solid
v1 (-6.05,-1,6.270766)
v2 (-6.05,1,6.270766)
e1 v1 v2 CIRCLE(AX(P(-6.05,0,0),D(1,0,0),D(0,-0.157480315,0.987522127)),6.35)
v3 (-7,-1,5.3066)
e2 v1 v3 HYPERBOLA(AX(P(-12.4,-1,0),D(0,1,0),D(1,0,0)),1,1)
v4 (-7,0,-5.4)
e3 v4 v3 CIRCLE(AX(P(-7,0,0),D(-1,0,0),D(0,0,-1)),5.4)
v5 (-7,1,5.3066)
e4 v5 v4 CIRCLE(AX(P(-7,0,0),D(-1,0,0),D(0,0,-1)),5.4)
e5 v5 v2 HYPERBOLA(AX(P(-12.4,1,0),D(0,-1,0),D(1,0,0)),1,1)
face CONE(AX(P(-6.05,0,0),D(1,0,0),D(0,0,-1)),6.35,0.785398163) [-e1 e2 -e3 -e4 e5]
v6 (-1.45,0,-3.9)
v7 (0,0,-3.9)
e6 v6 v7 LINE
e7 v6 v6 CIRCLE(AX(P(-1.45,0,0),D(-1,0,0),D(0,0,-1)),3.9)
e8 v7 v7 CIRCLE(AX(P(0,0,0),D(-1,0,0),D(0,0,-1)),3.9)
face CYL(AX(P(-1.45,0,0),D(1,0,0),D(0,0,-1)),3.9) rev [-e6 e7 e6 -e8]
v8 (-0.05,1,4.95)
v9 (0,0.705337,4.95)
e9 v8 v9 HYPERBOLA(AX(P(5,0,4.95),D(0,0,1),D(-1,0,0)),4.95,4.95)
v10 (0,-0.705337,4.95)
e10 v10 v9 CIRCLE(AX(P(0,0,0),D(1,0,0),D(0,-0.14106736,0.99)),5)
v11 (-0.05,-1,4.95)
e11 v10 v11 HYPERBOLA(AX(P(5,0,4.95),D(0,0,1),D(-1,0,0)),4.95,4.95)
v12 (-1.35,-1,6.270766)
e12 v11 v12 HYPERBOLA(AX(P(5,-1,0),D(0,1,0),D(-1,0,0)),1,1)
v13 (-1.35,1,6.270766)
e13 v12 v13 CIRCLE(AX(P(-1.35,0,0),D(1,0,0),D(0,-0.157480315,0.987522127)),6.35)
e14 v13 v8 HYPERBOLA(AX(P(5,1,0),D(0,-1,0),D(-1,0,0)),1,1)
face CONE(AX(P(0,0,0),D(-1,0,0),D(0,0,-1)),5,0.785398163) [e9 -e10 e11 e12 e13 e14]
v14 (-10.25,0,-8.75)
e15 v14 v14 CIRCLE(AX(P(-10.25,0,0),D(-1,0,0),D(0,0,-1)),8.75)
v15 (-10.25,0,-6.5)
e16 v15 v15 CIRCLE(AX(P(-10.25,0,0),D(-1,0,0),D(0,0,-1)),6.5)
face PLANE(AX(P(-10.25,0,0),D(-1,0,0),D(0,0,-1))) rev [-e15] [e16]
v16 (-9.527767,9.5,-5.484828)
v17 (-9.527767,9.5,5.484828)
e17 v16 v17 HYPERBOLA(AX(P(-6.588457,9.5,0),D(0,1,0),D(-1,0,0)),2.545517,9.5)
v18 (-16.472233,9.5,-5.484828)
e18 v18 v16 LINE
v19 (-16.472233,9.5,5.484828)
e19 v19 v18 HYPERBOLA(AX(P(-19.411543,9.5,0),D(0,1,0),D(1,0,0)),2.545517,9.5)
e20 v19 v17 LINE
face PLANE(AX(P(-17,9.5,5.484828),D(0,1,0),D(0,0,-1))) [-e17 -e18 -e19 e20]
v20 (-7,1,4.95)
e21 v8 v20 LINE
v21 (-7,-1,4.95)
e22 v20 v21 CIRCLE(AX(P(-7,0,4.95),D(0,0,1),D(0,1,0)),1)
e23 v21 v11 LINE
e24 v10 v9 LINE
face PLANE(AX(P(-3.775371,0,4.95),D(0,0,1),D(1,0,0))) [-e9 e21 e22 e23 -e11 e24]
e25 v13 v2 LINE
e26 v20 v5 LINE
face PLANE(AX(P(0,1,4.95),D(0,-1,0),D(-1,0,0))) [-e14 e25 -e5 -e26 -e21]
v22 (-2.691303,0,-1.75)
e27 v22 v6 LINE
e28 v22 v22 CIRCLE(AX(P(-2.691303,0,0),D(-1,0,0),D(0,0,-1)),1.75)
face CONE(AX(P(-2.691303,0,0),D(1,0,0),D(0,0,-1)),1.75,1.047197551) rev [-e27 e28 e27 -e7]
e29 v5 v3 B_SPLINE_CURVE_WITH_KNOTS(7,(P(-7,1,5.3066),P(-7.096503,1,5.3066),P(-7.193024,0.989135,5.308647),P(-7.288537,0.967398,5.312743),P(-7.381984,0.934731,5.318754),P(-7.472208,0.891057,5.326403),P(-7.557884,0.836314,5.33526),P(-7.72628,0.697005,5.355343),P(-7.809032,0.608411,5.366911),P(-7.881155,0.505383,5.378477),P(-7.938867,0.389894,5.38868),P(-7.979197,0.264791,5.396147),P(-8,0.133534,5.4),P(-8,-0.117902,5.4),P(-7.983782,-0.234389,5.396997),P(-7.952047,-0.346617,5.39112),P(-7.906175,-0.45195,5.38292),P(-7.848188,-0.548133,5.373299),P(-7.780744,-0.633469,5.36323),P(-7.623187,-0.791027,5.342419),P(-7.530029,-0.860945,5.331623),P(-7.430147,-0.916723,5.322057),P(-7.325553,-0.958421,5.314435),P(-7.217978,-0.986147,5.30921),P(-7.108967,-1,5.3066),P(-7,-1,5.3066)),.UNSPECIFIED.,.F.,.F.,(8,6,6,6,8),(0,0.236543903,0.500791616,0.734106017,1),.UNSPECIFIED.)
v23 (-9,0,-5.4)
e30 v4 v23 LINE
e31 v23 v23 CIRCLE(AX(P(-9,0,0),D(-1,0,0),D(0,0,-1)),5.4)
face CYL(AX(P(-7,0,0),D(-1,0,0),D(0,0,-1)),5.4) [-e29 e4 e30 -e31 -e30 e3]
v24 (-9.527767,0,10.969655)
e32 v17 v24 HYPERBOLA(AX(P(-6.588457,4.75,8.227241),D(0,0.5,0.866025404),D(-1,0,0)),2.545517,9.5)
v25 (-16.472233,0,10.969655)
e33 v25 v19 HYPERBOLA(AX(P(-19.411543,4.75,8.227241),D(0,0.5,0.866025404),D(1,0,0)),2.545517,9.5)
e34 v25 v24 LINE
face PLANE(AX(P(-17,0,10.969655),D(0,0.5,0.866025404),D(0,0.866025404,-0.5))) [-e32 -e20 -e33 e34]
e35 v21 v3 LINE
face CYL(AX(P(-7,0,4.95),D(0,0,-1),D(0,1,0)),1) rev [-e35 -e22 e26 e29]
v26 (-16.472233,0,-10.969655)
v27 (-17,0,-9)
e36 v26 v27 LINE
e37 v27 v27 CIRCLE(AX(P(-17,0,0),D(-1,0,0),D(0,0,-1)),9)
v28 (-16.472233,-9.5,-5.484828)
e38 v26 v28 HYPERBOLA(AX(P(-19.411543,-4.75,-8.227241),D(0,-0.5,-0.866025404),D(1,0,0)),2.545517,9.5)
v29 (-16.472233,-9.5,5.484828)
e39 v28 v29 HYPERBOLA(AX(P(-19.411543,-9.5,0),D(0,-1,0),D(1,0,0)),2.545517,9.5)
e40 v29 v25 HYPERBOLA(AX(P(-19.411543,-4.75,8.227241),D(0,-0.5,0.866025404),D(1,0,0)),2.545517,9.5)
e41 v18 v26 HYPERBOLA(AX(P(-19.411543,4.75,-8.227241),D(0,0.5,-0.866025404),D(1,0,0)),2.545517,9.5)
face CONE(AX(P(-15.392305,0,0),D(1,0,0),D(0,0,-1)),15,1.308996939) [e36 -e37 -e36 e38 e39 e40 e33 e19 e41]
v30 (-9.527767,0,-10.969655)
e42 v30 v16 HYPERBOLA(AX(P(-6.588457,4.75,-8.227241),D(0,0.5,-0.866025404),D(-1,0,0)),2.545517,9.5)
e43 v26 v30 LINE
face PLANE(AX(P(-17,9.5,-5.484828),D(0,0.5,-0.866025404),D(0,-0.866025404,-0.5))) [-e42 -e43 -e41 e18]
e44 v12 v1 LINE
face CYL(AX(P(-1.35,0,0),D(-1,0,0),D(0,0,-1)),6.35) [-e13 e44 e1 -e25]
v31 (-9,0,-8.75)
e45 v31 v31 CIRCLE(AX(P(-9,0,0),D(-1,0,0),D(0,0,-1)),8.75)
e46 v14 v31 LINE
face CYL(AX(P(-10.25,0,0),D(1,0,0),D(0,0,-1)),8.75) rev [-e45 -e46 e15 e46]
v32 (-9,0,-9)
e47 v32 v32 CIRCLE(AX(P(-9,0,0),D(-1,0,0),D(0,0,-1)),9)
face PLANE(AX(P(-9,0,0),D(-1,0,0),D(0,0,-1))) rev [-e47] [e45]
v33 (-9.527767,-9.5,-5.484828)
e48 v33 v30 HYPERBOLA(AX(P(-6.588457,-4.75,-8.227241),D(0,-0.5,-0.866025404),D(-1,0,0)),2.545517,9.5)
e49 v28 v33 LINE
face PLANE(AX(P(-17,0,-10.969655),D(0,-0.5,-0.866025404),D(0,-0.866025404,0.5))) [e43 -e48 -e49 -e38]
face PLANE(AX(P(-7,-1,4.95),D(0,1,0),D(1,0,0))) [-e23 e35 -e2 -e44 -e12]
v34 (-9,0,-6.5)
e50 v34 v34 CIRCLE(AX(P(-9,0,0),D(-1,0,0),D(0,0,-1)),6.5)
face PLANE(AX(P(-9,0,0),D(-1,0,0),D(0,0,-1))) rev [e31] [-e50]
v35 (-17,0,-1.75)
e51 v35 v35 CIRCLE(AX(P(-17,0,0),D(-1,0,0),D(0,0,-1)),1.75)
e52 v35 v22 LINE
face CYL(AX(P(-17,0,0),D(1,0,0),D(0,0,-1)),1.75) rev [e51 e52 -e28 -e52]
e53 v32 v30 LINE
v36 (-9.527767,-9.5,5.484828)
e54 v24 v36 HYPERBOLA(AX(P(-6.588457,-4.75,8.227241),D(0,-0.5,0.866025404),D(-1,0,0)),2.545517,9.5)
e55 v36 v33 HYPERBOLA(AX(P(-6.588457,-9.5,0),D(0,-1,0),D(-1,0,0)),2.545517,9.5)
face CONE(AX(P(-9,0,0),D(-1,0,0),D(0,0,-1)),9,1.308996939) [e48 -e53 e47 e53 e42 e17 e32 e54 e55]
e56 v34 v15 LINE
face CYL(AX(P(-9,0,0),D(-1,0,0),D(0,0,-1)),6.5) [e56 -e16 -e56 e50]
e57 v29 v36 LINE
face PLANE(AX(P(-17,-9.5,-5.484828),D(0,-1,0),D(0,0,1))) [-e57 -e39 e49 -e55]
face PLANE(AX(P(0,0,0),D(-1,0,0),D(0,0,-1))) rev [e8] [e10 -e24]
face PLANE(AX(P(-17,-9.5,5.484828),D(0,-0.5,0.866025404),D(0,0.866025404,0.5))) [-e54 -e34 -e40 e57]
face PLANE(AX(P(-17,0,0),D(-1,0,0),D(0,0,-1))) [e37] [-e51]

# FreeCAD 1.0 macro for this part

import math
import FreeCAD as App
import Part
import Sketcher
from FreeCAD import Vector
Q = App.Units.Quantity


def add_polygon(sketch, points):
    """Adds a closed chain of lines whose ends are joined by coincident constraints."""
    first, n = sketch.GeometryCount, len(points)
    for a, b in zip(points, points[1:] + points[:1]):
        sketch.addGeometry(Part.LineSegment(App.Vector(*a, 0), App.Vector(*b, 0)), False)
    for i in range(n):
        sketch.addConstraint(Sketcher.Constraint("Coincident", first + i, 2, first + (i + 1) % n, 1))

doc = App.newDocument("Part")
body = doc.addObject("PartDesign::Body", "Body")

# Sketch on XY plane
sketch1 = body.newObject("Sketcher::SketchObject", "Sketch")
sketch1.AttachmentSupport = (doc.getObject("XY_Plane"), [""])
sketch1.MapMode = "FlatFace"
add_polygon(sketch1, [(0, 3.9), (0, 5), (-1.35, 6.35), (-6.05, 6.35), (-7, 5.4), (-9, 5.4), (-9, 6.5), (-10.25, 6.5), (-10.25, 8.75), (-9, 8.75), (-9, 9), (-10.61, 15), (-15.39, 15), (-17, 9), (-17, 1.75), (-2.69, 1.75), (-1.45, 3.9)])  # lines 0-16
sketch1.addConstraint(Sketcher.Constraint("Vertical", 0))
sketch1.addConstraint(Sketcher.Constraint("Horizontal", 2))
sketch1.addConstraint(Sketcher.Constraint("Horizontal", 4))
sketch1.addConstraint(Sketcher.Constraint("Vertical", 5))
sketch1.addConstraint(Sketcher.Constraint("Horizontal", 6))
sketch1.addConstraint(Sketcher.Constraint("Vertical", 7))
sketch1.addConstraint(Sketcher.Constraint("Horizontal", 8))
sketch1.addConstraint(Sketcher.Constraint("Vertical", 9))
sketch1.addConstraint(Sketcher.Constraint("Horizontal", 11))
sketch1.addConstraint(Sketcher.Constraint("Vertical", 13))
sketch1.addConstraint(Sketcher.Constraint("Horizontal", 14))
sketch1.addConstraint(Sketcher.Constraint("Horizontal", 16))
sketch1.addConstraint(Sketcher.Constraint("PointOnObject", 0, 2, -2))
sketch1.addConstraint(Sketcher.Constraint("Perpendicular", 1, 3))
sketch1.addConstraint(Sketcher.Constraint("Horizontal", 9, 2, 12, 2))
sketch1.addConstraint(Sketcher.Constraint("Vertical", 5, 2, 8, 2))
sketch1.addConstraint(Sketcher.Constraint("Equal", 0, 5))
sketch1.addConstraint(Sketcher.Constraint("Equal", 10, 12))
sketch1.addConstraint(Sketcher.Constraint("DistanceX", 4, 2, 4, 1, 2.0))
sketch1.addConstraint(Sketcher.Constraint("Angle", 1, Q("135 deg")))
sketch1.addConstraint(Sketcher.Constraint("Angle", 10, Q("105 deg")))
sketch1.addConstraint(Sketcher.Constraint("Angle", 15, Q("60 deg")))
sketch1.addConstraint(Sketcher.Constraint("DistanceX", 2, 2, 2, 1, 4.7))
sketch1.addConstraint(Sketcher.Constraint("DistanceY", 0, 1, 0, 2, 1.1))
sketch1.addConstraint(Sketcher.Constraint("DistanceY", -1, 1, 0, 2, 5.0))
sketch1.addConstraint(Sketcher.Constraint("DistanceX", 3, 2, -1, 1, 7.0))
sketch1.addConstraint(Sketcher.Constraint("DistanceY", -1, 1, 9, 2, 9.0))
sketch1.addConstraint(Sketcher.Constraint("DistanceY", -1, 1, 10, 2, 15.0))
sketch1.addConstraint(Sketcher.Constraint("DistanceX", 12, 2, -1, 1, 17.0))
sketch1.addConstraint(Sketcher.Constraint("DistanceY", 13, 2, 7, 2, 7.0))
sketch1.addConstraint(Sketcher.Constraint("DistanceX", 6, 2, 6, 1, 1.25))
sketch1.addConstraint(Sketcher.Constraint("DistanceX", 16, 1, 16, 2, 1.45))
sketch1.addConstraint(Sketcher.Constraint("DistanceY", 7, 1, 7, 2, 2.25))
sketch1.addConstraint(Sketcher.Constraint("DistanceY", 9, 1, 9, 2, 0.25))
revolution = body.newObject("PartDesign::Revolution", "Revolution")
revolution.Profile = sketch1
revolution.ReferenceAxis = (sketch1, ["H_Axis"])
revolution.Angle = 360

# Sketch on YZ plane
sketch2 = body.newObject("Sketcher::SketchObject", "Sketch001")
sketch2.AttachmentSupport = (doc.getObject("YZ_Plane"), [""])
sketch2.MapMode = "FlatFace"
sketch2.AttachmentOffset = App.Placement(Vector(0, 0, -17), App.Rotation())
add_polygon(sketch2, [(21, -21), (-21, -21), (-21, 21), (21, 21)])  # lines 0-3
add_polygon(sketch2, [(10, 5), (0, 11), (-10, 5), (-10, -5), (0, -11), (10, -5)])  # lines 4-9
sketch2.addConstraint(Sketcher.Constraint("Horizontal", 0))
sketch2.addConstraint(Sketcher.Constraint("Vertical", 1))
sketch2.addConstraint(Sketcher.Constraint("Horizontal", 2))
sketch2.addConstraint(Sketcher.Constraint("Vertical", 3))
sketch2.addConstraint(Sketcher.Constraint("Vertical", 6))
sketch2.addConstraint(Sketcher.Constraint("Vertical", 9))
sketch2.addConstraint(Sketcher.Constraint("Symmetric", 0, 2, 2, 2, -1, 1))
sketch2.addConstraint(Sketcher.Constraint("Symmetric", 4, 2, 7, 2, -1, 1))
sketch2.addConstraint(Sketcher.Constraint("Symmetric", 5, 2, 8, 2, -1, 1))
sketch2.addConstraint(Sketcher.Constraint("PointOnObject", 4, 2, -2))
sketch2.addConstraint(Sketcher.Constraint("Parallel", 4, 7))
sketch2.addConstraint(Sketcher.Constraint("Horizontal", 6, 2, 8, 2))
sketch2.addConstraint(Sketcher.Constraint("Equal", 2, 1))
sketch2.addConstraint(Sketcher.Constraint("Angle", 4, Q("150 deg")))
sketch2.addConstraint(Sketcher.Constraint("DistanceX", 6, 2, 8, 2, 19.0))
sketch2.addConstraint(Sketcher.Constraint("DistanceX", 0, 2, 0, 1, 41.142))
sketch2.addConstraint(Sketcher.Constraint("DistanceY", 6, 2, 6, 1, 10.969655))
pocket1 = body.newObject("PartDesign::Pocket", "Pocket")
pocket1.Profile = sketch2
pocket1.Type = "ThroughAll"
pocket1.Reversed = True

# Sketch on XY plane
sketch3 = body.newObject("Sketcher::SketchObject", "Sketch002")
sketch3.AttachmentSupport = (doc.getObject("XY_Plane"), [""])
sketch3.MapMode = "FlatFace"
sketch3.AttachmentOffset = App.Placement(Vector(0, 0, 4.95), App.Rotation())
sketch3.addGeometry(Part.LineSegment(Vector(0, 1, 0), Vector(-7, 1, 0)), False)
sketch3.addGeometry(Part.ArcOfCircle(Part.Circle(Vector(-7, 0, 0), Vector(0, 0, 1), 1), math.radians(90), math.radians(270)), False)
sketch3.addGeometry(Part.LineSegment(Vector(-7, -1, 0), Vector(0, -1, 0)), False)
sketch3.addGeometry(Part.LineSegment(Vector(0, -1, 0), Vector(0, 1, 0)), False)
sketch3.addConstraint(Sketcher.Constraint("Tangent", 0, 2, 1, 1))
sketch3.addConstraint(Sketcher.Constraint("Tangent", 1, 2, 2, 1))
sketch3.addConstraint(Sketcher.Constraint("Coincident", 2, 2, 3, 1))
sketch3.addConstraint(Sketcher.Constraint("Coincident", 3, 2, 0, 1))
sketch3.addConstraint(Sketcher.Constraint("Horizontal", 0))
sketch3.addConstraint(Sketcher.Constraint("Horizontal", 2))
sketch3.addConstraint(Sketcher.Constraint("Vertical", 3))
sketch3.addConstraint(Sketcher.Constraint("Symmetric", 2, 2, 3, 2, -1, 1))
sketch3.addConstraint(Sketcher.Constraint("Radius", 1, 1.0))
sketch3.addConstraint(Sketcher.Constraint("DistanceX", 0, 2, 0, 1, 7.0))
pocket2 = body.newObject("PartDesign::Pocket", "Pocket001")
pocket2.Profile = sketch3
pocket2.Length = 10
pocket2.Reversed = True

doc.recompute()
